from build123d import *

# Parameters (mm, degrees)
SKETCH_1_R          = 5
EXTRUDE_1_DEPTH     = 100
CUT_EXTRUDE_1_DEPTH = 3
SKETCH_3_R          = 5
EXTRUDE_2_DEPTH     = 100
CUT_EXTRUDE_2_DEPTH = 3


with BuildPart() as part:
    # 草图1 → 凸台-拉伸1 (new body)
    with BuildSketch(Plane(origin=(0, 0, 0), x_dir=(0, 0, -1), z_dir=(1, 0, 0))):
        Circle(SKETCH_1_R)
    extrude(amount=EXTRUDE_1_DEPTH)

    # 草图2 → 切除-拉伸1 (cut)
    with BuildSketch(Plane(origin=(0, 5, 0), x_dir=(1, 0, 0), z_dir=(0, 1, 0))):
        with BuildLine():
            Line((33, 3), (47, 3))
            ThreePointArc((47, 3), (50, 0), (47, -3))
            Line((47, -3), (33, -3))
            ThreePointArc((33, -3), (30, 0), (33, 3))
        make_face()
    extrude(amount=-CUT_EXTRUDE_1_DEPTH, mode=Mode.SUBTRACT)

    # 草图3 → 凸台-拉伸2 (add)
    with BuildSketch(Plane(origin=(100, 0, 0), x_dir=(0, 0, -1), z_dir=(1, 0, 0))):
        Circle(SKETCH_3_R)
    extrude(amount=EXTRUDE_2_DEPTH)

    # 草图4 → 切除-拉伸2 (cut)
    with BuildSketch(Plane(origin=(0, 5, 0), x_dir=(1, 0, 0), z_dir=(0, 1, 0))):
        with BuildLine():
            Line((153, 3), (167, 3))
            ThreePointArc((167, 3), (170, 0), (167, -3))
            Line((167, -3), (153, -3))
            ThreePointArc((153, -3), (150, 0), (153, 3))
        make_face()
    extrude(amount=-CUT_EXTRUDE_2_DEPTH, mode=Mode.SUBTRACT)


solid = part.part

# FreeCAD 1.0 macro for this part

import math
import FreeCAD as App
import Part
import Sketcher

V = App.Vector

doc = App.newDocument("Part")
body = doc.addObject("PartDesign::Body", "Body")

# Sketch on YZ plane
sketch1 = body.newObject("Sketcher::SketchObject", "Sketch")
sketch1.AttachmentSupport = (doc.getObject("YZ_Plane"), [""])
sketch1.MapMode = "FlatFace"
sketch1.addGeometry(Part.Circle(V(0, 0, 0), V(0, 0, 1), 5), False)
sketch1.addConstraint([
    Sketcher.Constraint("Coincident", 0, 3, -1, 1),
    Sketcher.Constraint("Diameter", 0, 10.0),
])
pad1 = body.newObject("PartDesign::Pad", "Pad")
pad1.Profile = sketch1
pad1.Length = 100

# Sketch on XZ plane
sketch2 = body.newObject("Sketcher::SketchObject", "Sketch001")
sketch2.AttachmentSupport = (doc.getObject("XZ_Plane"), [""])
sketch2.MapMode = "FlatFace"
sketch2.AttachmentOffset = App.Placement(V(0, 0, -5), App.Rotation())
sketch2.addGeometry([
    Part.LineSegment(V(47, -3, 0), V(33, -3, 0)),
    Part.ArcOfCircle(Part.Circle(V(33, 0, 0), V(0, 0, 1), 3), math.radians(90), math.radians(270)),
    Part.LineSegment(V(33, 3, 0), V(47, 3, 0)),
    Part.ArcOfCircle(Part.Circle(V(47, 0, 0), V(0, 0, 1), 3), math.radians(-90), math.radians(90)),
], False)
sketch2.addConstraint([
    Sketcher.Constraint("Tangent", 0, 2, 1, 2),
    Sketcher.Constraint("Tangent", 1, 1, 2, 1),
    Sketcher.Constraint("Tangent", 2, 2, 3, 2),
    Sketcher.Constraint("Tangent", 3, 1, 0, 1),
    Sketcher.Constraint("Horizontal", 0),
    Sketcher.Constraint("Horizontal", 2),
    Sketcher.Constraint("PointOnObject", 1, 3, -1),
    Sketcher.Constraint("Radius", 1, 3.0),
    Sketcher.Constraint("DistanceX", 0, 2, 0, 1, 14.0),
    Sketcher.Constraint("DistanceX", -1, 1, 1, 3, 33.0),
])
pocket1 = body.newObject("PartDesign::Pocket", "Pocket")
pocket1.Profile = sketch2
pocket1.Length = 3
pocket1.Reversed = True

# Sketch on YZ plane
sketch3 = body.newObject("Sketcher::SketchObject", "Sketch002")
sketch3.AttachmentSupport = (doc.getObject("YZ_Plane"), [""])
sketch3.MapMode = "FlatFace"
sketch3.AttachmentOffset = App.Placement(V(0, 0, 100), App.Rotation())
sketch3.addGeometry(Part.Circle(V(0, 0, 0), V(0, 0, 1), 5), False)
sketch3.addConstraint([
    Sketcher.Constraint("Coincident", 0, 3, -1, 1),
    Sketcher.Constraint("Diameter", 0, 10.0),
])
pad2 = body.newObject("PartDesign::Pad", "Pad001")
pad2.Profile = sketch3
pad2.Length = 100

# Sketch on XZ plane
sketch4 = body.newObject("Sketcher::SketchObject", "Sketch003")
sketch4.AttachmentSupport = (doc.getObject("XZ_Plane"), [""])
sketch4.MapMode = "FlatFace"
sketch4.AttachmentOffset = App.Placement(V(0, 0, -5), App.Rotation())
sketch4.addGeometry([
    Part.LineSegment(V(167, -3, 0), V(153, -3, 0)),
    Part.ArcOfCircle(Part.Circle(V(153, 0, 0), V(0, 0, 1), 3), math.radians(90), math.radians(270)),
    Part.LineSegment(V(153, 3, 0), V(167, 3, 0)),
    Part.ArcOfCircle(Part.Circle(V(167, 0, 0), V(0, 0, 1), 3), math.radians(-90), math.radians(90)),
], False)
sketch4.addConstraint([
    Sketcher.Constraint("Tangent", 0, 2, 1, 2),
    Sketcher.Constraint("Tangent", 1, 1, 2, 1),
    Sketcher.Constraint("Tangent", 2, 2, 3, 2),
    Sketcher.Constraint("Tangent", 3, 1, 0, 1),
    Sketcher.Constraint("Horizontal", 0),
    Sketcher.Constraint("Horizontal", 2),
    Sketcher.Constraint("PointOnObject", 1, 3, -1),
    Sketcher.Constraint("Radius", 1, 3.0),
    Sketcher.Constraint("DistanceX", 0, 2, 0, 1, 14.0),
    Sketcher.Constraint("DistanceX", -1, 1, 1, 3, 153.0),
])
pocket2 = body.newObject("PartDesign::Pocket", "Pocket001")
pocket2.Profile = sketch4
pocket2.Length = 3
pocket2.Reversed = True

doc.recompute()
